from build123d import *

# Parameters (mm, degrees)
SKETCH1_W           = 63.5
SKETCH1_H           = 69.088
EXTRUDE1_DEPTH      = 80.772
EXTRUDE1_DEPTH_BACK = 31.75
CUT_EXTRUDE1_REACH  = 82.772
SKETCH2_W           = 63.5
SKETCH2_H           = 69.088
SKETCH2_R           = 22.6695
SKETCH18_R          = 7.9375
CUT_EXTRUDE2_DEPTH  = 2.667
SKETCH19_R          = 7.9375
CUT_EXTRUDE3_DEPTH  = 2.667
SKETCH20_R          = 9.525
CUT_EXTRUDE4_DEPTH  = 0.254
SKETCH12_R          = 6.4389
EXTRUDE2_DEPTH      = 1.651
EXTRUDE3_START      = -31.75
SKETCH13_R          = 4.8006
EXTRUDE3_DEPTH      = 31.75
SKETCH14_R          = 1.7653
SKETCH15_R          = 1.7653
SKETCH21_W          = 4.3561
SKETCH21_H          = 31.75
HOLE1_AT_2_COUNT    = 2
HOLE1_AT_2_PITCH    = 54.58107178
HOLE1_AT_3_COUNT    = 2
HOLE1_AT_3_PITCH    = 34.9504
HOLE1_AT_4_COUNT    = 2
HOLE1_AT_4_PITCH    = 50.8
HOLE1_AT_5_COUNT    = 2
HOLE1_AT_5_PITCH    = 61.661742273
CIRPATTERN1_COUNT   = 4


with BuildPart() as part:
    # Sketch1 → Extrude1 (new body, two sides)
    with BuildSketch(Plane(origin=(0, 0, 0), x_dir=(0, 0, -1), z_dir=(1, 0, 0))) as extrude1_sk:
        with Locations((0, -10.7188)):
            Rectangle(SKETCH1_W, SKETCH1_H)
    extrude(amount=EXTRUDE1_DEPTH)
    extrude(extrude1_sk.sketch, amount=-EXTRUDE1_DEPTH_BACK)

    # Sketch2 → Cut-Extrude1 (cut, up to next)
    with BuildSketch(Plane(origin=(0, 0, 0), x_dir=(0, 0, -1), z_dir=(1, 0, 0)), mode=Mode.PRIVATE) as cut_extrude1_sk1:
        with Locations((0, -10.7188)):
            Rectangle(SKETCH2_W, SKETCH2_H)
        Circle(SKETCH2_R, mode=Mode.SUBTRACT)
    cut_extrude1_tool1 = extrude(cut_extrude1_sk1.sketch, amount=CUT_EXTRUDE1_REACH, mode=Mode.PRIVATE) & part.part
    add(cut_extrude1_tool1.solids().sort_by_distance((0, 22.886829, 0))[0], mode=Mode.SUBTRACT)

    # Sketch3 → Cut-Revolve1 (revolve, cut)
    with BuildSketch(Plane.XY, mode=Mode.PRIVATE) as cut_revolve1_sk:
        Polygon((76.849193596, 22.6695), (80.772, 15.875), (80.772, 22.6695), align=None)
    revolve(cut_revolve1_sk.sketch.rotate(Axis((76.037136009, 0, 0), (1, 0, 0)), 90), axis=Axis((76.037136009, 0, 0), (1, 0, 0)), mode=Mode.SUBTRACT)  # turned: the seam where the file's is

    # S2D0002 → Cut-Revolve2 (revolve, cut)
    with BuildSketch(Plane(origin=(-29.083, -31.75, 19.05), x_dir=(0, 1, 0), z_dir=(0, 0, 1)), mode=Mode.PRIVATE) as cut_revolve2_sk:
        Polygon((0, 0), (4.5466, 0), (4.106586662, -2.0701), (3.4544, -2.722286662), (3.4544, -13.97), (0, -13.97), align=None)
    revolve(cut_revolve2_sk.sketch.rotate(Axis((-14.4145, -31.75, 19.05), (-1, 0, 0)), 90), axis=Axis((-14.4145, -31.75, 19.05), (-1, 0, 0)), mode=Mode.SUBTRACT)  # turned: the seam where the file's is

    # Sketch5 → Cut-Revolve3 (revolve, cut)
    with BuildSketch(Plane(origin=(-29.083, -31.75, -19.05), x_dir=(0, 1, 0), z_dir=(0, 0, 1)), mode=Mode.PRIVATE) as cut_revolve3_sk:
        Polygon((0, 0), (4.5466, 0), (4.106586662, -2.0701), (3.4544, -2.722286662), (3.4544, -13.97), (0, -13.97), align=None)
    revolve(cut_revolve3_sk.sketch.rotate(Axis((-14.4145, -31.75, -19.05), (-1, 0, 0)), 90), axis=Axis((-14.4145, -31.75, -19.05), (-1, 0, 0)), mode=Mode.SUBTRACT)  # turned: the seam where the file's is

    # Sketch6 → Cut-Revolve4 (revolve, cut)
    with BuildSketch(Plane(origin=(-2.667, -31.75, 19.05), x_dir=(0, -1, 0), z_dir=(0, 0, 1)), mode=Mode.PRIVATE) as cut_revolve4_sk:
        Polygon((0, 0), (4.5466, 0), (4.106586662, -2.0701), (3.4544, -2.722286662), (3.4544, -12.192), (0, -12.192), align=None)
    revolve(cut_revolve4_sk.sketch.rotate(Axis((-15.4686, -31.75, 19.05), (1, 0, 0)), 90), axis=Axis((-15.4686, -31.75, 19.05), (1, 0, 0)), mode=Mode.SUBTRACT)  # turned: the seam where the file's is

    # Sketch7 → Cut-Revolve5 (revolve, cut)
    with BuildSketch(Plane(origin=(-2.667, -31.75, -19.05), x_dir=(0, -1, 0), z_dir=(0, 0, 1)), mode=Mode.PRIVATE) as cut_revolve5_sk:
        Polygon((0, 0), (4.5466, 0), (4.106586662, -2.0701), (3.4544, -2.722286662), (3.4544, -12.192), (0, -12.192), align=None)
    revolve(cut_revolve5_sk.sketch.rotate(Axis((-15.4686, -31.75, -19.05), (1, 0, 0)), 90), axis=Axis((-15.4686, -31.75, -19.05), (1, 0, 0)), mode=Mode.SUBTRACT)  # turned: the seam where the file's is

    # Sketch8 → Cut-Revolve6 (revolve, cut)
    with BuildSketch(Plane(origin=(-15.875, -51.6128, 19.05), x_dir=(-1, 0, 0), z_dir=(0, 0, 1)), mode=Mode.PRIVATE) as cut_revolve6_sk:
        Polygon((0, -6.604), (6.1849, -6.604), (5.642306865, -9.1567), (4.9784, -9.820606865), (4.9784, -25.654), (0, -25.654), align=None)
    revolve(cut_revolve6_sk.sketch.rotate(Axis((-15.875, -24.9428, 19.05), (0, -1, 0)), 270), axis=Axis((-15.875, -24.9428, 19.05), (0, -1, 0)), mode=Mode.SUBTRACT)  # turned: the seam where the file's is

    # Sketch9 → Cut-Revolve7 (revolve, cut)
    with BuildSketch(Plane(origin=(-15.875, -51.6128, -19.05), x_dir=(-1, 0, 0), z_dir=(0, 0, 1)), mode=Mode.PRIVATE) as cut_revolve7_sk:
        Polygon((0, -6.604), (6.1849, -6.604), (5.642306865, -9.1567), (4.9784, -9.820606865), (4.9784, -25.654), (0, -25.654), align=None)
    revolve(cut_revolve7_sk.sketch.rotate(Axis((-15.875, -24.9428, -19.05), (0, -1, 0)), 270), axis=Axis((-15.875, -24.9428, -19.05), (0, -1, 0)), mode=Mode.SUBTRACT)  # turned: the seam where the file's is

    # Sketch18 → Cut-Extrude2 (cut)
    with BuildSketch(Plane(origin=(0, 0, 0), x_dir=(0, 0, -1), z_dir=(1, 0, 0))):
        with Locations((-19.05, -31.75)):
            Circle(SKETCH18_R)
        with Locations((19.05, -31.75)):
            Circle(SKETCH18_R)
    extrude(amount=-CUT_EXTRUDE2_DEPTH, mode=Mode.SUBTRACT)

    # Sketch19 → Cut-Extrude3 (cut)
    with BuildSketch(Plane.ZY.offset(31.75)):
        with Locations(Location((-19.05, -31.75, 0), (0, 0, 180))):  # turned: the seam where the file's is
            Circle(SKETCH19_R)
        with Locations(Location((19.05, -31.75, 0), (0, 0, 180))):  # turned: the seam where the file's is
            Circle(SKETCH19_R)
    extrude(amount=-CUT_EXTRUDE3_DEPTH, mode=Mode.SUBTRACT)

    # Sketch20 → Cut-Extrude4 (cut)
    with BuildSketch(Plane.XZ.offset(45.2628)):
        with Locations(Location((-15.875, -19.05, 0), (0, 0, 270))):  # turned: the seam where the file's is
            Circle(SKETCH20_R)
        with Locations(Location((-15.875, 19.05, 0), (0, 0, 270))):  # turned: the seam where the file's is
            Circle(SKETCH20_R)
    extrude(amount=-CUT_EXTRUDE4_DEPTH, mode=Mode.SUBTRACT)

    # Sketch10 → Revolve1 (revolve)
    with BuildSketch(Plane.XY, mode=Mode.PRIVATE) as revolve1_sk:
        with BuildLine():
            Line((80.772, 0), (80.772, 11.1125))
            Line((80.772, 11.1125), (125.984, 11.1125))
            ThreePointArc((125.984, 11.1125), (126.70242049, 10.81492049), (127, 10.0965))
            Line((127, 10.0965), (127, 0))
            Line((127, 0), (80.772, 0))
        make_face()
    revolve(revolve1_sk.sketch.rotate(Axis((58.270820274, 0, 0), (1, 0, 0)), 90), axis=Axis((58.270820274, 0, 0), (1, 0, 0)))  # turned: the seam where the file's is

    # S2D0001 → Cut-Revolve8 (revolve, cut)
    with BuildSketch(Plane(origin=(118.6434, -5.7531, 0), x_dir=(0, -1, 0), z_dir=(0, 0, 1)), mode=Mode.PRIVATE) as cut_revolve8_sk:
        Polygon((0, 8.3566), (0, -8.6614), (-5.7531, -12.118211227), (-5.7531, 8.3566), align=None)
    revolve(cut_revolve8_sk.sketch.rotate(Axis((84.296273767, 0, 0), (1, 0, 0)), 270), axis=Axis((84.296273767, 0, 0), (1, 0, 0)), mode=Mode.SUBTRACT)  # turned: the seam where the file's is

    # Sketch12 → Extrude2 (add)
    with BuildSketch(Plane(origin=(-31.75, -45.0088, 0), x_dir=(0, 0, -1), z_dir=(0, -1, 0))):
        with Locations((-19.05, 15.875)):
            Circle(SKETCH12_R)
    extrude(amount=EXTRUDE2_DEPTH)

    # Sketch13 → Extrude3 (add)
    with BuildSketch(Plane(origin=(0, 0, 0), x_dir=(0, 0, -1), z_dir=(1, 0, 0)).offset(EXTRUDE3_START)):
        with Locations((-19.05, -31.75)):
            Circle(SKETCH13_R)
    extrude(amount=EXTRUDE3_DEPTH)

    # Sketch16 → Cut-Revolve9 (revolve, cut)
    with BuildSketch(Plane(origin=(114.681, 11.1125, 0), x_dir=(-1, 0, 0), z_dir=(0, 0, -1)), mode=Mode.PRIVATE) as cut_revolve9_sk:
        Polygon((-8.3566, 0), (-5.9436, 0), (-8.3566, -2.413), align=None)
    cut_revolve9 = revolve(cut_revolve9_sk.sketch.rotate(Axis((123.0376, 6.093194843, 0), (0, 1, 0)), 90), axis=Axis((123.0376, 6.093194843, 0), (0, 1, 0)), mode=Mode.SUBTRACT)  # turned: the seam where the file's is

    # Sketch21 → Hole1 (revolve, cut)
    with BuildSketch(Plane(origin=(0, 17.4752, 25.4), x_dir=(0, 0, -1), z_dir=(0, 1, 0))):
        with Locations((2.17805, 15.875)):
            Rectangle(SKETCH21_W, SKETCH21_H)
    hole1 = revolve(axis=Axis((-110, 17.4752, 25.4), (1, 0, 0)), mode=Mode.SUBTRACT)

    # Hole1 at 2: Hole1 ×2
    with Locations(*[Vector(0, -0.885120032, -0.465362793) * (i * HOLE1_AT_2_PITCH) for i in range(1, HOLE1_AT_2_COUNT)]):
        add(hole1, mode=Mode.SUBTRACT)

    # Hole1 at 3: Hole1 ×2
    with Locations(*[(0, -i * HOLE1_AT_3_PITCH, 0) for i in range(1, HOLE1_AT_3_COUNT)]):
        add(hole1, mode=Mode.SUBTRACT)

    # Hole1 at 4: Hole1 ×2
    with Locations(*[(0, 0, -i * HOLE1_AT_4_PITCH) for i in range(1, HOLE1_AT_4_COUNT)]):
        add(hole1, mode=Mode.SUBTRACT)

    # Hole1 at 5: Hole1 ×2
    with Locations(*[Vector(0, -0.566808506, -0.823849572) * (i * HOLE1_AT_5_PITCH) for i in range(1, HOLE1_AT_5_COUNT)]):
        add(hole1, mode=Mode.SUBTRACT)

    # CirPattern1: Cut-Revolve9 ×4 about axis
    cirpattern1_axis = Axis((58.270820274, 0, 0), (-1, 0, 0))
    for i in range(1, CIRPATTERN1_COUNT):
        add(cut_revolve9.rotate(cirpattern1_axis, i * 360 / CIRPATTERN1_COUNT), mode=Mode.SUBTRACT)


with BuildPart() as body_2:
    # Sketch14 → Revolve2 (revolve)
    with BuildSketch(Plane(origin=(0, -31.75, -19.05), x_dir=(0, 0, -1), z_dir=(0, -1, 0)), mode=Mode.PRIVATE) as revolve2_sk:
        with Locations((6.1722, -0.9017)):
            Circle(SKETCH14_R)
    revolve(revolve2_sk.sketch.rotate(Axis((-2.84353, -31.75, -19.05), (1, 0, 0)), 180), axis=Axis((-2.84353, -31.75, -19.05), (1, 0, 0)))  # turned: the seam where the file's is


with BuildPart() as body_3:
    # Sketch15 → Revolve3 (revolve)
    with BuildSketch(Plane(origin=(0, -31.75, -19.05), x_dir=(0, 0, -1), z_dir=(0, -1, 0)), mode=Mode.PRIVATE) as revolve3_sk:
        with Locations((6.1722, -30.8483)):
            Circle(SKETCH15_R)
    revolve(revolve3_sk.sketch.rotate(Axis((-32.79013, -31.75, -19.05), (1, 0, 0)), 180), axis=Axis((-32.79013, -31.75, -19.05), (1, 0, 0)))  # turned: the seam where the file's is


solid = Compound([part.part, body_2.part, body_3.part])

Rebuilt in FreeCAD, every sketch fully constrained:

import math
import FreeCAD as App
import Part
import Sketcher
from FreeCAD import Vector
Q = App.Units.Quantity


def add_polygon(sketch, points):
    """Adds a closed chain of lines whose ends are joined by coincident constraints."""
    first, n = sketch.GeometryCount, len(points)
    for a, b in zip(points, points[1:] + points[:1]):
        sketch.addGeometry(Part.LineSegment(App.Vector(*a, 0), App.Vector(*b, 0)), False)
    for i in range(n):
        sketch.addConstraint(Sketcher.Constraint("Coincident", first + i, 2, first + (i + 1) % n, 1))

doc = App.newDocument("Part")
body = doc.addObject("PartDesign::Body", "Body")

sketch1 = body.newObject("Sketcher::SketchObject", "Sketch")
sketch1.AttachmentSupport = (doc.getObject("YZ_Plane"), [""])
sketch1.MapMode = "FlatFace"
add_polygon(sketch1, [(23.8252, 31.75), (-45.2628, 31.75), (-45.2628, -31.75), (23.8252, -31.75)])
sketch1.addConstraint(Sketcher.Constraint("Horizontal", 0))
sketch1.addConstraint(Sketcher.Constraint("Vertical", 1))
sketch1.addConstraint(Sketcher.Constraint("Horizontal", 2))
sketch1.addConstraint(Sketcher.Constraint("Vertical", 3))
sketch1.addConstraint(Sketcher.Constraint("DistanceY", 1, 2, 1, 1, Q("2.5 in")))
sketch1.addConstraint(Sketcher.Constraint("DistanceX", 0, 2, 0, 1, Q("2.72 in")))
sketch1.addConstraint(Sketcher.Constraint("DistanceY", -1, 1, 0, 2, Q("1.25 in")))
sketch1.addConstraint(Sketcher.Constraint("DistanceX", 0, 2, -1, 1, Q("1.782 in")))
pad1 = body.newObject("PartDesign::Pad", "Pad")
pad1.Profile = sketch1
pad1.Type = "TwoLengths"
pad1.Length = Q("3.18 in")
pad1.Length2 = Q("1.25 in")

sketch2 = body.newObject("Sketcher::SketchObject", "Sketch001")
sketch2.AttachmentSupport = (doc.getObject("YZ_Plane"), [""])
sketch2.MapMode = "FlatFace"
add_polygon(sketch2, [(23.8252, 31.75), (-45.2628, 31.75), (-45.2628, -31.75), (23.8252, -31.75)])
sketch2.addGeometry(Part.Circle(Vector(0, 0, 0), Vector(0, 0, 1), 22.6695), False)
sketch2.addConstraint(Sketcher.Constraint("Horizontal", 0))
sketch2.addConstraint(Sketcher.Constraint("Vertical", 1))
sketch2.addConstraint(Sketcher.Constraint("Horizontal", 2))
sketch2.addConstraint(Sketcher.Constraint("Vertical", 3))
sketch2.addConstraint(Sketcher.Constraint("Coincident", 4, 3, -1, 1))
sketch2.addConstraint(Sketcher.Constraint("Diameter", 4, Q("1.785 in")))
sketch2.addConstraint(Sketcher.Constraint("DistanceY", 1, 2, 1, 1, Q("2.5 in")))
sketch2.addConstraint(Sketcher.Constraint("DistanceX", 0, 2, 0, 1, Q("2.72 in")))
sketch2.addConstraint(Sketcher.Constraint("DistanceY", -1, 1, 0, 2, Q("1.25 in")))
sketch2.addConstraint(Sketcher.Constraint("DistanceX", 0, 2, -1, 1, Q("1.782 in")))
pocket1 = body.newObject("PartDesign::Pocket", "Pocket")
pocket1.Profile = sketch2
pocket1.Type = "UpToFirst"
pocket1.Reversed = True

sketch3 = body.newObject("Sketcher::SketchObject", "Sketch002")
sketch3.AttachmentSupport = (doc.getObject("XY_Plane"), [""])
sketch3.MapMode = "FlatFace"
add_polygon(sketch3, [(76.849194, 22.6695), (80.772, 15.875), (80.772, 22.6695)])
sketch3.addConstraint(Sketcher.Constraint("Vertical", 1))
sketch3.addConstraint(Sketcher.Constraint("Horizontal", 2))
sketch3.addConstraint(Sketcher.Constraint("Angle", 0, Q("-60 deg")))
sketch3.addConstraint(Sketcher.Constraint("DistanceX", -1, 1, 0, 2, Q("3.18 in")))
sketch3.addConstraint(Sketcher.Constraint("DistanceY", 1, 1, 1, 2, Q("0.2675 in")))
sketch3.addConstraint(Sketcher.Constraint("DistanceY", -1, 1, 0, 2, Q("0.625 in")))
groove = body.newObject("PartDesign::Groove", "Groove")
groove.Profile = sketch3
groove.ReferenceAxis = (sketch3, ["H_Axis"])
groove.Angle = 360

sketch4 = body.newObject("Sketcher::SketchObject", "Sketch003")
sketch4.AttachmentSupport = (doc.getObject("XY_Plane"), [""])
sketch4.MapMode = "FlatFace"
sketch4.AttachmentOffset = App.Placement(Vector(0, 0, 0.75 * 25.4), App.Rotation())
add_polygon(sketch4, [(-29.083, -27.2034), (-29.083, -31.75), (-15.113, -31.75), (-15.113, -28.2956), (-26.360713, -28.2956), (-27.0129, -27.643413)])
sketch4.addGeometry(Part.LineSegment(Vector(-15.113, -31.75, 0), Vector(-29.083, -31.75, 0)), True)
sketch4.addConstraint(Sketcher.Constraint("Vertical", 0))
sketch4.addConstraint(Sketcher.Constraint("Horizontal", 1))
sketch4.addConstraint(Sketcher.Constraint("Vertical", 2))
sketch4.addConstraint(Sketcher.Constraint("Horizontal", 3))
sketch4.addConstraint(Sketcher.Constraint("Horizontal", 6))
sketch4.addConstraint(Sketcher.Constraint("Coincident", 6, 1, 1, 2))
sketch4.addConstraint(Sketcher.Constraint("Vertical", 5, 2, 6, 2))
sketch4.addConstraint(Sketcher.Constraint("Angle", 4, Q("135 deg")))
sketch4.addConstraint(Sketcher.Constraint("Angle", 5, Q("168 deg")))
sketch4.addConstraint(Sketcher.Constraint("DistanceX", 1, 1, 1, 2, Q("0.55 in")))
sketch4.addConstraint(Sketcher.Constraint("DistanceY", 0, 2, 0, 1, Q("0.179 in")))
sketch4.addConstraint(Sketcher.Constraint("DistanceY", 2, 1, 2, 2, Q("0.136 in")))
sketch4.addConstraint(Sketcher.Constraint("DistanceY", 0, 2, -1, 1, Q("1.25 in")))
sketch4.addConstraint(Sketcher.Constraint("DistanceX", 0, 2, -1, 1, Q("1.145 in")))
sketch4.addConstraint(Sketcher.Constraint("DistanceX", 4, 2, -1, 1, Q("1.0635 in")))
groove2 = body.newObject("PartDesign::Groove", "Groove001")
groove2.Profile = sketch4
groove2.ReferenceAxis = (sketch4, ["Axis0"])
groove2.Angle = 360

sketch5 = body.newObject("Sketcher::SketchObject", "Sketch004")
sketch5.AttachmentSupport = (doc.getObject("XY_Plane"), [""])
sketch5.MapMode = "FlatFace"
sketch5.AttachmentOffset = App.Placement(Vector(0, 0, -0.75 * 25.4), App.Rotation())
add_polygon(sketch5, [(-29.083, -27.2034), (-29.083, -31.75), (-15.113, -31.75), (-15.113, -28.2956), (-26.360713, -28.2956), (-27.0129, -27.643413)])
sketch5.addGeometry(Part.LineSegment(Vector(-15.113, -31.75, 0), Vector(-29.083, -31.75, 0)), True)
sketch5.addConstraint(Sketcher.Constraint("Vertical", 0))
sketch5.addConstraint(Sketcher.Constraint("Horizontal", 1))
sketch5.addConstraint(Sketcher.Constraint("Vertical", 2))
sketch5.addConstraint(Sketcher.Constraint("Horizontal", 3))
sketch5.addConstraint(Sketcher.Constraint("Horizontal", 6))
sketch5.addConstraint(Sketcher.Constraint("Coincident", 6, 1, 1, 2))
sketch5.addConstraint(Sketcher.Constraint("Vertical", 5, 2, 6, 2))
sketch5.addConstraint(Sketcher.Constraint("Angle", 4, Q("135 deg")))
sketch5.addConstraint(Sketcher.Constraint("Angle", 5, Q("168 deg")))
sketch5.addConstraint(Sketcher.Constraint("DistanceX", 1, 1, 1, 2, Q("0.55 in")))
sketch5.addConstraint(Sketcher.Constraint("DistanceY", 0, 2, 0, 1, Q("0.179 in")))
sketch5.addConstraint(Sketcher.Constraint("DistanceY", 2, 1, 2, 2, Q("0.136 in")))
sketch5.addConstraint(Sketcher.Constraint("DistanceY", 0, 2, -1, 1, Q("1.25 in")))
sketch5.addConstraint(Sketcher.Constraint("DistanceX", 0, 2, -1, 1, Q("1.145 in")))
sketch5.addConstraint(Sketcher.Constraint("DistanceX", 4, 2, -1, 1, Q("1.0635 in")))
groove3 = body.newObject("PartDesign::Groove", "Groove002")
groove3.Profile = sketch5
groove3.ReferenceAxis = (sketch5, ["Axis0"])
groove3.Angle = 360

sketch6 = body.newObject("Sketcher::SketchObject", "Sketch005")
sketch6.AttachmentSupport = (doc.getObject("XY_Plane"), [""])
sketch6.MapMode = "FlatFace"
sketch6.AttachmentOffset = App.Placement(Vector(0, 0, 0.75 * 25.4), App.Rotation())
add_polygon(sketch6, [(-2.667, -36.2966), (-2.667, -31.75), (-14.859, -31.75), (-14.859, -35.2044), (-5.389287, -35.2044), (-4.7371, -35.856587)])
sketch6.addGeometry(Part.LineSegment(Vector(-14.859, -31.75, 0), Vector(-2.667, -31.75, 0)), True)
sketch6.addConstraint(Sketcher.Constraint("Vertical", 0))
sketch6.addConstraint(Sketcher.Constraint("Horizontal", 1))
sketch6.addConstraint(Sketcher.Constraint("Vertical", 2))
sketch6.addConstraint(Sketcher.Constraint("Horizontal", 3))
sketch6.addConstraint(Sketcher.Constraint("Horizontal", 6))
sketch6.addConstraint(Sketcher.Constraint("Coincident", 6, 1, 1, 2))
sketch6.addConstraint(Sketcher.Constraint("Vertical", 5, 2, 6, 2))
sketch6.addConstraint(Sketcher.Constraint("Angle", 4, Q("-45 deg")))
sketch6.addConstraint(Sketcher.Constraint("Angle", 5, Q("-12 deg")))
sketch6.addConstraint(Sketcher.Constraint("DistanceX", 1, 2, 1, 1, Q("0.48 in")))
sketch6.addConstraint(Sketcher.Constraint("DistanceY", 0, 1, 0, 2, Q("0.179 in")))
sketch6.addConstraint(Sketcher.Constraint("DistanceY", 2, 2, 2, 1, Q("0.136 in")))
sketch6.addConstraint(Sketcher.Constraint("DistanceY", 0, 2, -1, 1, Q("1.25 in")))
sketch6.addConstraint(Sketcher.Constraint("DistanceX", 0, 2, -1, 1, Q("0.105 in")))
sketch6.addConstraint(Sketcher.Constraint("DistanceX", 4, 2, -1, 1, Q("0.1865 in")))
groove4 = body.newObject("PartDesign::Groove", "Groove003")
groove4.Profile = sketch6
groove4.ReferenceAxis = (sketch6, ["Axis0"])
groove4.Angle = 360

sketch7 = body.newObject("Sketcher::SketchObject", "Sketch006")
sketch7.AttachmentSupport = (doc.getObject("XY_Plane"), [""])
sketch7.MapMode = "FlatFace"
sketch7.AttachmentOffset = App.Placement(Vector(0, 0, -0.75 * 25.4), App.Rotation())
add_polygon(sketch7, [(-2.667, -36.2966), (-2.667, -31.75), (-14.859, -31.75), (-14.859, -35.2044), (-5.389287, -35.2044), (-4.7371, -35.856587)])
sketch7.addGeometry(Part.LineSegment(Vector(-14.859, -31.75, 0), Vector(-2.667, -31.75, 0)), True)
sketch7.addConstraint(Sketcher.Constraint("Vertical", 0))
sketch7.addConstraint(Sketcher.Constraint("Horizontal", 1))
sketch7.addConstraint(Sketcher.Constraint("Vertical", 2))
sketch7.addConstraint(Sketcher.Constraint("Horizontal", 3))
sketch7.addConstraint(Sketcher.Constraint("Horizontal", 6))
sketch7.addConstraint(Sketcher.Constraint("Coincident", 6, 1, 1, 2))
sketch7.addConstraint(Sketcher.Constraint("Vertical", 5, 2, 6, 2))
sketch7.addConstraint(Sketcher.Constraint("Angle", 4, Q("-45 deg")))
sketch7.addConstraint(Sketcher.Constraint("Angle", 5, Q("-12 deg")))
sketch7.addConstraint(Sketcher.Constraint("DistanceX", 1, 2, 1, 1, Q("0.48 in")))
sketch7.addConstraint(Sketcher.Constraint("DistanceY", 0, 1, 0, 2, Q("0.179 in")))
sketch7.addConstraint(Sketcher.Constraint("DistanceY", 2, 2, 2, 1, Q("0.136 in")))
sketch7.addConstraint(Sketcher.Constraint("DistanceY", 0, 2, -1, 1, Q("1.25 in")))
sketch7.addConstraint(Sketcher.Constraint("DistanceX", 0, 2, -1, 1, Q("0.105 in")))
sketch7.addConstraint(Sketcher.Constraint("DistanceX", 4, 2, -1, 1, Q("0.1865 in")))
groove5 = body.newObject("PartDesign::Groove", "Groove004")
groove5.Profile = sketch7
groove5.ReferenceAxis = (sketch7, ["Axis0"])
groove5.Angle = 360

sketch8 = body.newObject("Sketcher::SketchObject", "Sketch007")
sketch8.AttachmentSupport = (doc.getObject("XY_Plane"), [""])
sketch8.MapMode = "FlatFace"
sketch8.AttachmentOffset = App.Placement(Vector(0, 0, 0.75 * 25.4), App.Rotation())
add_polygon(sketch8, [(-22.0599, -45.0088), (-15.875, -45.0088), (-15.875, -25.9588), (-20.8534, -25.9588), (-20.8534, -41.792193), (-21.517307, -42.4561)])
sketch8.addGeometry(Part.LineSegment(Vector(-15.875, -25.9588, 0), Vector(-15.875, -45.0088, 0)), True)
sketch8.addConstraint(Sketcher.Constraint("Horizontal", 0))
sketch8.addConstraint(Sketcher.Constraint("Vertical", 1))
sketch8.addConstraint(Sketcher.Constraint("Horizontal", 2))
sketch8.addConstraint(Sketcher.Constraint("Vertical", 3))
sketch8.addConstraint(Sketcher.Constraint("Vertical", 6))
sketch8.addConstraint(Sketcher.Constraint("Coincident", 6, 1, 1, 2))
sketch8.addConstraint(Sketcher.Constraint("Horizontal", 5, 2, 6, 2))
sketch8.addConstraint(Sketcher.Constraint("Angle", 4, Q("-135 deg")))
sketch8.addConstraint(Sketcher.Constraint("Angle", 5, Q("-102 deg")))
sketch8.addConstraint(Sketcher.Constraint("DistanceY", 1, 1, 1, 2, Q("0.75 in")))
sketch8.addConstraint(Sketcher.Constraint("DistanceX", 2, 2, 2, 1, Q("0.196 in")))
sketch8.addConstraint(Sketcher.Constraint("DistanceX", 0, 1, 0, 2, Q("0.2435 in")))
sketch8.addConstraint(Sketcher.Constraint("DistanceX", 0, 2, -1, 1, Q("0.625 in")))
sketch8.addConstraint(Sketcher.Constraint("DistanceY", 0, 2, -1, 1, Q("1.772 in")))
sketch8.addConstraint(Sketcher.Constraint("DistanceY", 4, 2, -1, 1, Q("1.6715 in")))
groove6 = body.newObject("PartDesign::Groove", "Groove005")
groove6.Profile = sketch8
groove6.ReferenceAxis = (sketch8, ["Axis0"])
groove6.Angle = 360

sketch9 = body.newObject("Sketcher::SketchObject", "Sketch008")
sketch9.AttachmentSupport = (doc.getObject("XY_Plane"), [""])
sketch9.MapMode = "FlatFace"
sketch9.AttachmentOffset = App.Placement(Vector(0, 0, -0.75 * 25.4), App.Rotation())
add_polygon(sketch9, [(-22.0599, -45.0088), (-15.875, -45.0088), (-15.875, -25.9588), (-20.8534, -25.9588), (-20.8534, -41.792193), (-21.517307, -42.4561)])
sketch9.addGeometry(Part.LineSegment(Vector(-15.875, -25.9588, 0), Vector(-15.875, -45.0088, 0)), True)
sketch9.addConstraint(Sketcher.Constraint("Horizontal", 0))
sketch9.addConstraint(Sketcher.Constraint("Vertical", 1))
sketch9.addConstraint(Sketcher.Constraint("Horizontal", 2))
sketch9.addConstraint(Sketcher.Constraint("Vertical", 3))
sketch9.addConstraint(Sketcher.Constraint("Vertical", 6))
sketch9.addConstraint(Sketcher.Constraint("Coincident", 6, 1, 1, 2))
sketch9.addConstraint(Sketcher.Constraint("Horizontal", 5, 2, 6, 2))
sketch9.addConstraint(Sketcher.Constraint("Angle", 4, Q("-135 deg")))
sketch9.addConstraint(Sketcher.Constraint("Angle", 5, Q("-102 deg")))
sketch9.addConstraint(Sketcher.Constraint("DistanceY", 1, 1, 1, 2, Q("0.75 in")))
sketch9.addConstraint(Sketcher.Constraint("DistanceX", 2, 2, 2, 1, Q("0.196 in")))
sketch9.addConstraint(Sketcher.Constraint("DistanceX", 0, 1, 0, 2, Q("0.2435 in")))
sketch9.addConstraint(Sketcher.Constraint("DistanceX", 0, 2, -1, 1, Q("0.625 in")))
sketch9.addConstraint(Sketcher.Constraint("DistanceY", 0, 2, -1, 1, Q("1.772 in")))
sketch9.addConstraint(Sketcher.Constraint("DistanceY", 4, 2, -1, 1, Q("1.6715 in")))
groove7 = body.newObject("PartDesign::Groove", "Groove006")
groove7.Profile = sketch9
groove7.ReferenceAxis = (sketch9, ["Axis0"])
groove7.Angle = 360

sketch10 = body.newObject("Sketcher::SketchObject", "Sketch009")
sketch10.AttachmentSupport = (doc.getObject("YZ_Plane"), [""])
sketch10.MapMode = "FlatFace"
sketch10.addGeometry(Part.Circle(Vector(-31.75, 19.05, 0), Vector(0, 0, 1), 7.9375), False)
sketch10.addGeometry(Part.Circle(Vector(-31.75, -19.05, 0), Vector(0, 0, 1), 7.9375), False)
sketch10.addConstraint(Sketcher.Constraint("Equal", 0, 1))
sketch10.addConstraint(Sketcher.Constraint("Symmetric", 0, 3, 1, 3, -1))
sketch10.addConstraint(Sketcher.Constraint("Diameter", 0, Q("0.625 in")))
sketch10.addConstraint(Sketcher.Constraint("DistanceY", 1, 3, 0, 3, Q("1.5 in")))
sketch10.addConstraint(Sketcher.Constraint("DistanceX", 0, 3, -1, 1, Q("1.25 in")))
pocket2 = body.newObject("PartDesign::Pocket", "Pocket001")
pocket2.Profile = sketch10
pocket2.Length = Q("0.105 in")

sketch11 = body.newObject("Sketcher::SketchObject", "Sketch010")
sketch11.AttachmentSupport = (doc.getObject("YZ_Plane"), [""])
sketch11.MapMode = "FlatFace"
sketch11.AttachmentOffset = App.Placement(Vector(0, 0, -1.25 * 25.4), App.Rotation())
sketch11.addGeometry(Part.Circle(Vector(-31.75, -19.05, 0), Vector(0, 0, 1), 7.9375), False)
sketch11.addGeometry(Part.Circle(Vector(-31.75, 19.05, 0), Vector(0, 0, 1), 7.9375), False)
sketch11.addConstraint(Sketcher.Constraint("Equal", 0, 1))
sketch11.addConstraint(Sketcher.Constraint("Symmetric", 0, 3, 1, 3, -1))
sketch11.addConstraint(Sketcher.Constraint("Diameter", 0, Q("0.625 in")))
sketch11.addConstraint(Sketcher.Constraint("DistanceY", 0, 3, 1, 3, Q("1.5 in")))
sketch11.addConstraint(Sketcher.Constraint("DistanceX", 0, 3, -1, 1, Q("1.25 in")))
pocket3 = body.newObject("PartDesign::Pocket", "Pocket002")
pocket3.Profile = sketch11
pocket3.Length = Q("0.105 in")
pocket3.Reversed = True

sketch12 = body.newObject("Sketcher::SketchObject", "Sketch011")
sketch12.AttachmentSupport = (doc.getObject("XZ_Plane"), [""])
sketch12.MapMode = "FlatFace"
sketch12.AttachmentOffset = App.Placement(Vector(0, 0, 1.782 * 25.4), App.Rotation())
sketch12.addGeometry(Part.Circle(Vector(-15.875, -19.05, 0), Vector(0, 0, 1), 9.525), False)
sketch12.addGeometry(Part.Circle(Vector(-15.875, 19.05, 0), Vector(0, 0, 1), 9.525), False)
sketch12.addConstraint(Sketcher.Constraint("Equal", 0, 1))
sketch12.addConstraint(Sketcher.Constraint("Symmetric", 0, 3, 1, 3, -1))
sketch12.addConstraint(Sketcher.Constraint("Diameter", 0, Q("0.75 in")))
sketch12.addConstraint(Sketcher.Constraint("DistanceY", 0, 3, 1, 3, Q("1.5 in")))
sketch12.addConstraint(Sketcher.Constraint("DistanceX", 0, 3, -1, 1, Q("0.625 in")))
pocket4 = body.newObject("PartDesign::Pocket", "Pocket003")
pocket4.Profile = sketch12
pocket4.Length = Q("0.01 in")

sketch13 = body.newObject("Sketcher::SketchObject", "Sketch012")
sketch13.AttachmentSupport = (doc.getObject("XY_Plane"), [""])
sketch13.MapMode = "FlatFace"
sketch13.addGeometry(Part.LineSegment(Vector(80.772, 11.1125, 0), Vector(80.772, 0, 0)), False)
sketch13.addGeometry(Part.LineSegment(Vector(80.772, 0, 0), Vector(127, 0, 0)), False)
sketch13.addGeometry(Part.LineSegment(Vector(127, 0, 0), Vector(127, 10.0965, 0)), False)
sketch13.addGeometry(Part.ArcOfCircle(Part.Circle(Vector(125.984, 10.0965, 0), Vector(0, 0, 1), 1.016), math.radians(0), math.radians(90)), False)
sketch13.addGeometry(Part.LineSegment(Vector(125.984, 11.1125, 0), Vector(80.772, 11.1125, 0)), False)
sketch13.addConstraint(Sketcher.Constraint("Coincident", 0, 2, 1, 1))
sketch13.addConstraint(Sketcher.Constraint("Coincident", 1, 2, 2, 1))
sketch13.addConstraint(Sketcher.Constraint("Tangent", 2, 2, 3, 1))
sketch13.addConstraint(Sketcher.Constraint("Tangent", 3, 2, 4, 1))
sketch13.addConstraint(Sketcher.Constraint("Coincident", 4, 2, 0, 1))
sketch13.addConstraint(Sketcher.Constraint("Vertical", 0))
sketch13.addConstraint(Sketcher.Constraint("Horizontal", 1))
sketch13.addConstraint(Sketcher.Constraint("Vertical", 2))
sketch13.addConstraint(Sketcher.Constraint("Horizontal", 4))
sketch13.addConstraint(Sketcher.Constraint("PointOnObject", 0, 2, -1))
sketch13.addConstraint(Sketcher.Constraint("Radius", 3, Q("0.04 in")))
sketch13.addConstraint(Sketcher.Constraint("DistanceX", -1, 1, 1, 2, Q("5 in")))
sketch13.addConstraint(Sketcher.Constraint("DistanceX", 1, 1, 1, 2, Q("1.82 in")))
sketch13.addConstraint(Sketcher.Constraint("DistanceY", 0, 2, 0, 1, Q("0.4375 in")))
revolution = body.newObject("PartDesign::Revolution", "Revolution")
revolution.Profile = sketch13
revolution.ReferenceAxis = (sketch13, ["H_Axis"])
revolution.Angle = 360

sketch14 = body.newObject("Sketcher::SketchObject", "Sketch013")
sketch14.AttachmentSupport = (doc.getObject("XY_Plane"), [""])
sketch14.MapMode = "FlatFace"
add_polygon(sketch14, [(109.982, -5.7531), (127, -5.7531), (127, 0), (106.525189, 0)])
sketch14.addConstraint(Sketcher.Constraint("Horizontal", 0))
sketch14.addConstraint(Sketcher.Constraint("Vertical", 1))
sketch14.addConstraint(Sketcher.Constraint("Horizontal", 2))
sketch14.addConstraint(Sketcher.Constraint("PointOnObject", 1, 2, -1))
sketch14.addConstraint(Sketcher.Constraint("DistanceX", -1, 1, 0, 2, Q("5 in")))
sketch14.addConstraint(Sketcher.Constraint("Angle", 3, Q("-59 deg")))
sketch14.addConstraint(Sketcher.Constraint("DistanceX", 0, 1, 0, 2, Q("0.67 in")))
sketch14.addConstraint(Sketcher.Constraint("DistanceY", 1, 1, 1, 2, Q("0.2265 in")))
groove8 = body.newObject("PartDesign::Groove", "Groove007")
groove8.Profile = sketch14
groove8.ReferenceAxis = (sketch14, ["H_Axis"])
groove8.Angle = 360

sketch15 = body.newObject("Sketcher::SketchObject", "Sketch014")
sketch15.AttachmentSupport = (doc.getObject("XZ_Plane"), [""])
sketch15.MapMode = "FlatFace"
sketch15.AttachmentOffset = App.Placement(Vector(0, 0, 1.772 * 25.4), App.Rotation())
sketch15.addGeometry(Part.Circle(Vector(-15.875, 19.05, 0), Vector(0, 0, 1), 6.4389), False)
sketch15.addConstraint(Sketcher.Constraint("Diameter", 0, Q("0.507 in")))
sketch15.addConstraint(Sketcher.Constraint("DistanceY", -1, 1, 0, 3, Q("0.75 in")))
sketch15.addConstraint(Sketcher.Constraint("DistanceX", 0, 3, -1, 1, Q("0.625 in")))
pad2 = body.newObject("PartDesign::Pad", "Pad001")
pad2.Profile = sketch15
pad2.Length = Q("0.065 in")

sketch16 = body.newObject("Sketcher::SketchObject", "Sketch015")
sketch16.AttachmentSupport = (doc.getObject("YZ_Plane"), [""])
sketch16.MapMode = "FlatFace"
sketch16.AttachmentOffset = App.Placement(Vector(0, 0, -1.25 * 25.4), App.Rotation())
sketch16.addGeometry(Part.Circle(Vector(-31.75, 19.05, 0), Vector(0, 0, 1), 4.8006), False)
sketch16.addConstraint(Sketcher.Constraint("Diameter", 0, Q("0.378 in")))
sketch16.addConstraint(Sketcher.Constraint("DistanceX", 0, 3, -1, 1, Q("1.25 in")))
sketch16.addConstraint(Sketcher.Constraint("DistanceY", -1, 1, 0, 3, Q("0.75 in")))
pad3 = body.newObject("PartDesign::Pad", "Pad002")
pad3.Profile = sketch16
pad3.Length = Q("1.25 in")

sketch17 = body.newObject("Sketcher::SketchObject", "Sketch016")
sketch17.AttachmentSupport = (doc.getObject("XY_Plane"), [""])
sketch17.MapMode = "FlatFace"
add_polygon(sketch17, [(120.6246, 11.1125), (123.0376, 11.1125), (123.0376, 8.6995)])
sketch17.addGeometry(Part.LineSegment(Vector(123.0376, 8.6995, 0), Vector(123.0376, 11.1125, 0)), True)
sketch17.addConstraint(Sketcher.Constraint("Horizontal", 0))
sketch17.addConstraint(Sketcher.Constraint("Vertical", 1))
sketch17.addConstraint(Sketcher.Constraint("Vertical", 3))
sketch17.addConstraint(Sketcher.Constraint("Coincident", 3, 1, 1, 2))
sketch17.addConstraint(Sketcher.Constraint("Horizontal", 2, 2, 3, 2))
sketch17.addConstraint(Sketcher.Constraint("Equal", 0, 1))
sketch17.addConstraint(Sketcher.Constraint("DistanceX", 0, 1, 0, 2, Q("0.095 in")))
sketch17.addConstraint(Sketcher.Constraint("DistanceX", -1, 1, 0, 2, Q("4.844 in")))
sketch17.addConstraint(Sketcher.Constraint("DistanceY", -1, 1, 0, 2, Q("0.4375 in")))
groove9 = body.newObject("PartDesign::Groove", "Groove008")
groove9.Profile = sketch17
groove9.ReferenceAxis = (sketch17, ["Axis0"])
groove9.Angle = 360

sketch18 = body.newObject("Sketcher::SketchObject", "Sketch017")
sketch18.AttachmentSupport = (doc.getObject("XZ_Plane"), [""])
sketch18.MapMode = "FlatFace"
sketch18.AttachmentOffset = App.Placement(Vector(0, 0, -0.688 * 25.4), App.Rotation())
add_polygon(sketch18, [(-31.75, 25.4), (0, 25.4), (0, 21.0439), (-31.75, 21.0439)])
sketch18.addGeometry(Part.LineSegment(Vector(-31.75, 25.4, 0), Vector(0, 25.4, 0)), True)
sketch18.addConstraint(Sketcher.Constraint("Horizontal", 0))
sketch18.addConstraint(Sketcher.Constraint("Vertical", 1))
sketch18.addConstraint(Sketcher.Constraint("Horizontal", 2))
sketch18.addConstraint(Sketcher.Constraint("Vertical", 3))
sketch18.addConstraint(Sketcher.Constraint("Horizontal", 4))
sketch18.addConstraint(Sketcher.Constraint("Coincident", 4, 1, 3, 2))
sketch18.addConstraint(Sketcher.Constraint("PointOnObject", 0, 2, -2))
sketch18.addConstraint(Sketcher.Constraint("PointOnObject", 4, 2, -2))
sketch18.addConstraint(Sketcher.Constraint("DistanceY", -1, 1, 0, 2, Q("1 in")))
sketch18.addConstraint(Sketcher.Constraint("DistanceX", 0, 1, 0, 2, Q("1.25 in")))
sketch18.addConstraint(Sketcher.Constraint("DistanceY", 1, 2, 1, 1, Q("0.1715 in")))
groove10 = body.newObject("PartDesign::Groove", "Groove009")
groove10.Profile = sketch18
groove10.ReferenceAxis = (sketch18, ["Axis0"])
groove10.Angle = 360
doc.recompute()

datumline = body.newObject("PartDesign::Line", "DatumLine")
datumline.Placement = App.Placement(Vector(0, 0, 0), App.Rotation(Vector(0, 0, 1), Vector(0, -0.885120032, -0.465362793)))
linearpattern = body.newObject("PartDesign::LinearPattern", "LinearPattern")
linearpattern.Originals = [groove10]
linearpattern.Direction = (datumline, [""])
linearpattern.Mode = "offset"
linearpattern.Offset = 54.581072
linearpattern.Occurrences = 2
body.Tip = linearpattern
doc.recompute()

linearpattern2 = body.newObject("PartDesign::LinearPattern", "LinearPattern001")
linearpattern2.Originals = [groove10]
linearpattern2.Direction = (doc.getObject("Y_Axis"), [""])
linearpattern2.Mode = "offset"
linearpattern2.Offset = Q("1.376 in")
linearpattern2.Occurrences = 2
linearpattern2.Reversed = True
body.Tip = linearpattern2
doc.recompute()

linearpattern3 = body.newObject("PartDesign::LinearPattern", "LinearPattern002")
linearpattern3.Originals = [groove10]
linearpattern3.Direction = (doc.getObject("Z_Axis"), [""])
linearpattern3.Mode = "offset"
linearpattern3.Offset = Q("2 in")
linearpattern3.Occurrences = 2
linearpattern3.Reversed = True
body.Tip = linearpattern3
doc.recompute()

datumline2 = body.newObject("PartDesign::Line", "DatumLine001")
datumline2.Placement = App.Placement(Vector(0, 0, 0), App.Rotation(Vector(0, 0, 1), Vector(0, -0.566808506, -0.823849572)))
linearpattern4 = body.newObject("PartDesign::LinearPattern", "LinearPattern003")
linearpattern4.Originals = [groove10]
linearpattern4.Direction = (datumline2, [""])
linearpattern4.Mode = "offset"
linearpattern4.Offset = 61.661742
linearpattern4.Occurrences = 2
body.Tip = linearpattern4
doc.recompute()

polarpattern = body.newObject("PartDesign::PolarPattern", "PolarPattern")
polarpattern.Originals = [groove9]
polarpattern.Axis = (doc.getObject("X_Axis"), [""])
polarpattern.Angle = 360
polarpattern.Occurrences = 4
body.Tip = polarpattern
body2 = doc.addObject("PartDesign::Body", "Body001")

sketch19 = body2.newObject("Sketcher::SketchObject", "Sketch018")
sketch19.AttachmentSupport = (doc.getObject("XZ_Plane001"), [""])
sketch19.MapMode = "FlatFace"
sketch19.AttachmentOffset = App.Placement(Vector(0, 0, 1.25 * 25.4), App.Rotation())
sketch19.addGeometry(Part.Circle(Vector(-0.9017, -25.2222, 0), Vector(0, 0, 1), 1.7653), False)
sketch19.addGeometry(Part.LineSegment(Vector(-0.9017, -19.05, 0), Vector(9.0983, -19.05, 0)), True)
sketch19.addConstraint(Sketcher.Constraint("Horizontal", 1))
sketch19.addConstraint(Sketcher.Constraint("Vertical", 0, 3, 1, 1))
sketch19.addConstraint(Sketcher.Constraint("Diameter", 0, Q("0.139 in")))
sketch19.addConstraint(Sketcher.Constraint("DistanceY", 1, 1, -1, 1, Q("0.75 in")))
sketch19.addConstraint(Sketcher.Constraint("DistanceY", 0, 3, -1, 1, Q("0.993 in")))
sketch19.addConstraint(Sketcher.Constraint("DistanceX", 1, 1, 1, 2, 10.0))
sketch19.addConstraint(Sketcher.Constraint("DistanceX", 0, 3, -1, 1, Q("0.0355 in")))
revolution2 = body2.newObject("PartDesign::Revolution", "Revolution001")
revolution2.Profile = sketch19
revolution2.ReferenceAxis = (sketch19, ["Axis0"])
revolution2.Angle = 360
body3 = doc.addObject("PartDesign::Body", "Body002")

sketch20 = body3.newObject("Sketcher::SketchObject", "Sketch019")
sketch20.AttachmentSupport = (doc.getObject("XZ_Plane002"), [""])
sketch20.MapMode = "FlatFace"
sketch20.AttachmentOffset = App.Placement(Vector(0, 0, 1.25 * 25.4), App.Rotation())
sketch20.addGeometry(Part.Circle(Vector(-30.8483, -25.2222, 0), Vector(0, 0, 1), 1.7653), False)
sketch20.addGeometry(Part.LineSegment(Vector(-30.8483, -19.05, 0), Vector(-20.8483, -19.05, 0)), True)
sketch20.addConstraint(Sketcher.Constraint("Horizontal", 1))
sketch20.addConstraint(Sketcher.Constraint("Vertical", 0, 3, 1, 1))
sketch20.addConstraint(Sketcher.Constraint("Diameter", 0, Q("0.139 in")))
sketch20.addConstraint(Sketcher.Constraint("DistanceY", 1, 1, -1, 1, Q("0.75 in")))
sketch20.addConstraint(Sketcher.Constraint("DistanceY", 0, 3, -1, 1, Q("0.993 in")))
sketch20.addConstraint(Sketcher.Constraint("DistanceX", 1, 1, 1, 2, 10.0))
sketch20.addConstraint(Sketcher.Constraint("DistanceX", 0, 3, -1, 1, Q("1.2145 in")))
revolution3 = body3.newObject("PartDesign::Revolution", "Revolution002")
revolution3.Profile = sketch20
revolution3.ReferenceAxis = (sketch20, ["Axis0"])
revolution3.Angle = 360

doc.recompute()
